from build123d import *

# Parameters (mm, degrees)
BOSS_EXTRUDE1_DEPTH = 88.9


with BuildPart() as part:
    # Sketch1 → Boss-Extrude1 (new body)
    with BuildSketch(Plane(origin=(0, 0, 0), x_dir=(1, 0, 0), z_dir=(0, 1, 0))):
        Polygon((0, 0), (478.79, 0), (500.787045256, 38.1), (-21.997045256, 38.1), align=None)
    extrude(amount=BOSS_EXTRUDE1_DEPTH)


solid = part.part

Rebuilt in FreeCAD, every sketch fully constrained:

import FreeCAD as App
import Part
import Sketcher

V = App.Vector
Q = App.Units.Quantity

doc = App.newDocument("Part")
body = doc.addObject("PartDesign::Body", "Body")

# Sketch on XZ plane
sketch1 = body.newObject("Sketcher::SketchObject", "Sketch")
sketch1.AttachmentSupport = (doc.getObject("XZ_Plane"), [""])
sketch1.MapMode = "FlatFace"
sketch1.addGeometry([
    Part.LineSegment(V(0, 0, 0), V(479, 0, 0)),
    Part.LineSegment(V(479, 0, 0), V(501, -38, 0)),
    Part.LineSegment(V(501, -38, 0), V(-22, -38, 0)),
    Part.LineSegment(V(-22, -38, 0), V(0, 0, 0)),
], False)
sketch1.addConstraint([
    Sketcher.Constraint("Coincident", 0, 2, 1, 1),
    Sketcher.Constraint("Coincident", 1, 2, 2, 1),
    Sketcher.Constraint("Coincident", 2, 2, 3, 1),
    Sketcher.Constraint("Coincident", 3, 2, 0, 1),
    Sketcher.Constraint("Horizontal", 0),
    Sketcher.Constraint("Horizontal", 2),
    Sketcher.Constraint("Coincident", 3, 2, -1, 1),
    Sketcher.Constraint("Equal", 1, 3),
    Sketcher.Constraint("Angle", 1, Q("-60 deg")),
    Sketcher.Constraint("DistanceX", 0, 1, 0, 2, Q("18.85 in")),
    Sketcher.Constraint("DistanceY", 1, 2, -1, 1, Q("1.5 in")),
])
pad1 = body.newObject("PartDesign::Pad", "Pad")
pad1.Profile = sketch1
pad1.Length = Q("3.5 in")
pad1.Reversed = True

doc.recompute()
